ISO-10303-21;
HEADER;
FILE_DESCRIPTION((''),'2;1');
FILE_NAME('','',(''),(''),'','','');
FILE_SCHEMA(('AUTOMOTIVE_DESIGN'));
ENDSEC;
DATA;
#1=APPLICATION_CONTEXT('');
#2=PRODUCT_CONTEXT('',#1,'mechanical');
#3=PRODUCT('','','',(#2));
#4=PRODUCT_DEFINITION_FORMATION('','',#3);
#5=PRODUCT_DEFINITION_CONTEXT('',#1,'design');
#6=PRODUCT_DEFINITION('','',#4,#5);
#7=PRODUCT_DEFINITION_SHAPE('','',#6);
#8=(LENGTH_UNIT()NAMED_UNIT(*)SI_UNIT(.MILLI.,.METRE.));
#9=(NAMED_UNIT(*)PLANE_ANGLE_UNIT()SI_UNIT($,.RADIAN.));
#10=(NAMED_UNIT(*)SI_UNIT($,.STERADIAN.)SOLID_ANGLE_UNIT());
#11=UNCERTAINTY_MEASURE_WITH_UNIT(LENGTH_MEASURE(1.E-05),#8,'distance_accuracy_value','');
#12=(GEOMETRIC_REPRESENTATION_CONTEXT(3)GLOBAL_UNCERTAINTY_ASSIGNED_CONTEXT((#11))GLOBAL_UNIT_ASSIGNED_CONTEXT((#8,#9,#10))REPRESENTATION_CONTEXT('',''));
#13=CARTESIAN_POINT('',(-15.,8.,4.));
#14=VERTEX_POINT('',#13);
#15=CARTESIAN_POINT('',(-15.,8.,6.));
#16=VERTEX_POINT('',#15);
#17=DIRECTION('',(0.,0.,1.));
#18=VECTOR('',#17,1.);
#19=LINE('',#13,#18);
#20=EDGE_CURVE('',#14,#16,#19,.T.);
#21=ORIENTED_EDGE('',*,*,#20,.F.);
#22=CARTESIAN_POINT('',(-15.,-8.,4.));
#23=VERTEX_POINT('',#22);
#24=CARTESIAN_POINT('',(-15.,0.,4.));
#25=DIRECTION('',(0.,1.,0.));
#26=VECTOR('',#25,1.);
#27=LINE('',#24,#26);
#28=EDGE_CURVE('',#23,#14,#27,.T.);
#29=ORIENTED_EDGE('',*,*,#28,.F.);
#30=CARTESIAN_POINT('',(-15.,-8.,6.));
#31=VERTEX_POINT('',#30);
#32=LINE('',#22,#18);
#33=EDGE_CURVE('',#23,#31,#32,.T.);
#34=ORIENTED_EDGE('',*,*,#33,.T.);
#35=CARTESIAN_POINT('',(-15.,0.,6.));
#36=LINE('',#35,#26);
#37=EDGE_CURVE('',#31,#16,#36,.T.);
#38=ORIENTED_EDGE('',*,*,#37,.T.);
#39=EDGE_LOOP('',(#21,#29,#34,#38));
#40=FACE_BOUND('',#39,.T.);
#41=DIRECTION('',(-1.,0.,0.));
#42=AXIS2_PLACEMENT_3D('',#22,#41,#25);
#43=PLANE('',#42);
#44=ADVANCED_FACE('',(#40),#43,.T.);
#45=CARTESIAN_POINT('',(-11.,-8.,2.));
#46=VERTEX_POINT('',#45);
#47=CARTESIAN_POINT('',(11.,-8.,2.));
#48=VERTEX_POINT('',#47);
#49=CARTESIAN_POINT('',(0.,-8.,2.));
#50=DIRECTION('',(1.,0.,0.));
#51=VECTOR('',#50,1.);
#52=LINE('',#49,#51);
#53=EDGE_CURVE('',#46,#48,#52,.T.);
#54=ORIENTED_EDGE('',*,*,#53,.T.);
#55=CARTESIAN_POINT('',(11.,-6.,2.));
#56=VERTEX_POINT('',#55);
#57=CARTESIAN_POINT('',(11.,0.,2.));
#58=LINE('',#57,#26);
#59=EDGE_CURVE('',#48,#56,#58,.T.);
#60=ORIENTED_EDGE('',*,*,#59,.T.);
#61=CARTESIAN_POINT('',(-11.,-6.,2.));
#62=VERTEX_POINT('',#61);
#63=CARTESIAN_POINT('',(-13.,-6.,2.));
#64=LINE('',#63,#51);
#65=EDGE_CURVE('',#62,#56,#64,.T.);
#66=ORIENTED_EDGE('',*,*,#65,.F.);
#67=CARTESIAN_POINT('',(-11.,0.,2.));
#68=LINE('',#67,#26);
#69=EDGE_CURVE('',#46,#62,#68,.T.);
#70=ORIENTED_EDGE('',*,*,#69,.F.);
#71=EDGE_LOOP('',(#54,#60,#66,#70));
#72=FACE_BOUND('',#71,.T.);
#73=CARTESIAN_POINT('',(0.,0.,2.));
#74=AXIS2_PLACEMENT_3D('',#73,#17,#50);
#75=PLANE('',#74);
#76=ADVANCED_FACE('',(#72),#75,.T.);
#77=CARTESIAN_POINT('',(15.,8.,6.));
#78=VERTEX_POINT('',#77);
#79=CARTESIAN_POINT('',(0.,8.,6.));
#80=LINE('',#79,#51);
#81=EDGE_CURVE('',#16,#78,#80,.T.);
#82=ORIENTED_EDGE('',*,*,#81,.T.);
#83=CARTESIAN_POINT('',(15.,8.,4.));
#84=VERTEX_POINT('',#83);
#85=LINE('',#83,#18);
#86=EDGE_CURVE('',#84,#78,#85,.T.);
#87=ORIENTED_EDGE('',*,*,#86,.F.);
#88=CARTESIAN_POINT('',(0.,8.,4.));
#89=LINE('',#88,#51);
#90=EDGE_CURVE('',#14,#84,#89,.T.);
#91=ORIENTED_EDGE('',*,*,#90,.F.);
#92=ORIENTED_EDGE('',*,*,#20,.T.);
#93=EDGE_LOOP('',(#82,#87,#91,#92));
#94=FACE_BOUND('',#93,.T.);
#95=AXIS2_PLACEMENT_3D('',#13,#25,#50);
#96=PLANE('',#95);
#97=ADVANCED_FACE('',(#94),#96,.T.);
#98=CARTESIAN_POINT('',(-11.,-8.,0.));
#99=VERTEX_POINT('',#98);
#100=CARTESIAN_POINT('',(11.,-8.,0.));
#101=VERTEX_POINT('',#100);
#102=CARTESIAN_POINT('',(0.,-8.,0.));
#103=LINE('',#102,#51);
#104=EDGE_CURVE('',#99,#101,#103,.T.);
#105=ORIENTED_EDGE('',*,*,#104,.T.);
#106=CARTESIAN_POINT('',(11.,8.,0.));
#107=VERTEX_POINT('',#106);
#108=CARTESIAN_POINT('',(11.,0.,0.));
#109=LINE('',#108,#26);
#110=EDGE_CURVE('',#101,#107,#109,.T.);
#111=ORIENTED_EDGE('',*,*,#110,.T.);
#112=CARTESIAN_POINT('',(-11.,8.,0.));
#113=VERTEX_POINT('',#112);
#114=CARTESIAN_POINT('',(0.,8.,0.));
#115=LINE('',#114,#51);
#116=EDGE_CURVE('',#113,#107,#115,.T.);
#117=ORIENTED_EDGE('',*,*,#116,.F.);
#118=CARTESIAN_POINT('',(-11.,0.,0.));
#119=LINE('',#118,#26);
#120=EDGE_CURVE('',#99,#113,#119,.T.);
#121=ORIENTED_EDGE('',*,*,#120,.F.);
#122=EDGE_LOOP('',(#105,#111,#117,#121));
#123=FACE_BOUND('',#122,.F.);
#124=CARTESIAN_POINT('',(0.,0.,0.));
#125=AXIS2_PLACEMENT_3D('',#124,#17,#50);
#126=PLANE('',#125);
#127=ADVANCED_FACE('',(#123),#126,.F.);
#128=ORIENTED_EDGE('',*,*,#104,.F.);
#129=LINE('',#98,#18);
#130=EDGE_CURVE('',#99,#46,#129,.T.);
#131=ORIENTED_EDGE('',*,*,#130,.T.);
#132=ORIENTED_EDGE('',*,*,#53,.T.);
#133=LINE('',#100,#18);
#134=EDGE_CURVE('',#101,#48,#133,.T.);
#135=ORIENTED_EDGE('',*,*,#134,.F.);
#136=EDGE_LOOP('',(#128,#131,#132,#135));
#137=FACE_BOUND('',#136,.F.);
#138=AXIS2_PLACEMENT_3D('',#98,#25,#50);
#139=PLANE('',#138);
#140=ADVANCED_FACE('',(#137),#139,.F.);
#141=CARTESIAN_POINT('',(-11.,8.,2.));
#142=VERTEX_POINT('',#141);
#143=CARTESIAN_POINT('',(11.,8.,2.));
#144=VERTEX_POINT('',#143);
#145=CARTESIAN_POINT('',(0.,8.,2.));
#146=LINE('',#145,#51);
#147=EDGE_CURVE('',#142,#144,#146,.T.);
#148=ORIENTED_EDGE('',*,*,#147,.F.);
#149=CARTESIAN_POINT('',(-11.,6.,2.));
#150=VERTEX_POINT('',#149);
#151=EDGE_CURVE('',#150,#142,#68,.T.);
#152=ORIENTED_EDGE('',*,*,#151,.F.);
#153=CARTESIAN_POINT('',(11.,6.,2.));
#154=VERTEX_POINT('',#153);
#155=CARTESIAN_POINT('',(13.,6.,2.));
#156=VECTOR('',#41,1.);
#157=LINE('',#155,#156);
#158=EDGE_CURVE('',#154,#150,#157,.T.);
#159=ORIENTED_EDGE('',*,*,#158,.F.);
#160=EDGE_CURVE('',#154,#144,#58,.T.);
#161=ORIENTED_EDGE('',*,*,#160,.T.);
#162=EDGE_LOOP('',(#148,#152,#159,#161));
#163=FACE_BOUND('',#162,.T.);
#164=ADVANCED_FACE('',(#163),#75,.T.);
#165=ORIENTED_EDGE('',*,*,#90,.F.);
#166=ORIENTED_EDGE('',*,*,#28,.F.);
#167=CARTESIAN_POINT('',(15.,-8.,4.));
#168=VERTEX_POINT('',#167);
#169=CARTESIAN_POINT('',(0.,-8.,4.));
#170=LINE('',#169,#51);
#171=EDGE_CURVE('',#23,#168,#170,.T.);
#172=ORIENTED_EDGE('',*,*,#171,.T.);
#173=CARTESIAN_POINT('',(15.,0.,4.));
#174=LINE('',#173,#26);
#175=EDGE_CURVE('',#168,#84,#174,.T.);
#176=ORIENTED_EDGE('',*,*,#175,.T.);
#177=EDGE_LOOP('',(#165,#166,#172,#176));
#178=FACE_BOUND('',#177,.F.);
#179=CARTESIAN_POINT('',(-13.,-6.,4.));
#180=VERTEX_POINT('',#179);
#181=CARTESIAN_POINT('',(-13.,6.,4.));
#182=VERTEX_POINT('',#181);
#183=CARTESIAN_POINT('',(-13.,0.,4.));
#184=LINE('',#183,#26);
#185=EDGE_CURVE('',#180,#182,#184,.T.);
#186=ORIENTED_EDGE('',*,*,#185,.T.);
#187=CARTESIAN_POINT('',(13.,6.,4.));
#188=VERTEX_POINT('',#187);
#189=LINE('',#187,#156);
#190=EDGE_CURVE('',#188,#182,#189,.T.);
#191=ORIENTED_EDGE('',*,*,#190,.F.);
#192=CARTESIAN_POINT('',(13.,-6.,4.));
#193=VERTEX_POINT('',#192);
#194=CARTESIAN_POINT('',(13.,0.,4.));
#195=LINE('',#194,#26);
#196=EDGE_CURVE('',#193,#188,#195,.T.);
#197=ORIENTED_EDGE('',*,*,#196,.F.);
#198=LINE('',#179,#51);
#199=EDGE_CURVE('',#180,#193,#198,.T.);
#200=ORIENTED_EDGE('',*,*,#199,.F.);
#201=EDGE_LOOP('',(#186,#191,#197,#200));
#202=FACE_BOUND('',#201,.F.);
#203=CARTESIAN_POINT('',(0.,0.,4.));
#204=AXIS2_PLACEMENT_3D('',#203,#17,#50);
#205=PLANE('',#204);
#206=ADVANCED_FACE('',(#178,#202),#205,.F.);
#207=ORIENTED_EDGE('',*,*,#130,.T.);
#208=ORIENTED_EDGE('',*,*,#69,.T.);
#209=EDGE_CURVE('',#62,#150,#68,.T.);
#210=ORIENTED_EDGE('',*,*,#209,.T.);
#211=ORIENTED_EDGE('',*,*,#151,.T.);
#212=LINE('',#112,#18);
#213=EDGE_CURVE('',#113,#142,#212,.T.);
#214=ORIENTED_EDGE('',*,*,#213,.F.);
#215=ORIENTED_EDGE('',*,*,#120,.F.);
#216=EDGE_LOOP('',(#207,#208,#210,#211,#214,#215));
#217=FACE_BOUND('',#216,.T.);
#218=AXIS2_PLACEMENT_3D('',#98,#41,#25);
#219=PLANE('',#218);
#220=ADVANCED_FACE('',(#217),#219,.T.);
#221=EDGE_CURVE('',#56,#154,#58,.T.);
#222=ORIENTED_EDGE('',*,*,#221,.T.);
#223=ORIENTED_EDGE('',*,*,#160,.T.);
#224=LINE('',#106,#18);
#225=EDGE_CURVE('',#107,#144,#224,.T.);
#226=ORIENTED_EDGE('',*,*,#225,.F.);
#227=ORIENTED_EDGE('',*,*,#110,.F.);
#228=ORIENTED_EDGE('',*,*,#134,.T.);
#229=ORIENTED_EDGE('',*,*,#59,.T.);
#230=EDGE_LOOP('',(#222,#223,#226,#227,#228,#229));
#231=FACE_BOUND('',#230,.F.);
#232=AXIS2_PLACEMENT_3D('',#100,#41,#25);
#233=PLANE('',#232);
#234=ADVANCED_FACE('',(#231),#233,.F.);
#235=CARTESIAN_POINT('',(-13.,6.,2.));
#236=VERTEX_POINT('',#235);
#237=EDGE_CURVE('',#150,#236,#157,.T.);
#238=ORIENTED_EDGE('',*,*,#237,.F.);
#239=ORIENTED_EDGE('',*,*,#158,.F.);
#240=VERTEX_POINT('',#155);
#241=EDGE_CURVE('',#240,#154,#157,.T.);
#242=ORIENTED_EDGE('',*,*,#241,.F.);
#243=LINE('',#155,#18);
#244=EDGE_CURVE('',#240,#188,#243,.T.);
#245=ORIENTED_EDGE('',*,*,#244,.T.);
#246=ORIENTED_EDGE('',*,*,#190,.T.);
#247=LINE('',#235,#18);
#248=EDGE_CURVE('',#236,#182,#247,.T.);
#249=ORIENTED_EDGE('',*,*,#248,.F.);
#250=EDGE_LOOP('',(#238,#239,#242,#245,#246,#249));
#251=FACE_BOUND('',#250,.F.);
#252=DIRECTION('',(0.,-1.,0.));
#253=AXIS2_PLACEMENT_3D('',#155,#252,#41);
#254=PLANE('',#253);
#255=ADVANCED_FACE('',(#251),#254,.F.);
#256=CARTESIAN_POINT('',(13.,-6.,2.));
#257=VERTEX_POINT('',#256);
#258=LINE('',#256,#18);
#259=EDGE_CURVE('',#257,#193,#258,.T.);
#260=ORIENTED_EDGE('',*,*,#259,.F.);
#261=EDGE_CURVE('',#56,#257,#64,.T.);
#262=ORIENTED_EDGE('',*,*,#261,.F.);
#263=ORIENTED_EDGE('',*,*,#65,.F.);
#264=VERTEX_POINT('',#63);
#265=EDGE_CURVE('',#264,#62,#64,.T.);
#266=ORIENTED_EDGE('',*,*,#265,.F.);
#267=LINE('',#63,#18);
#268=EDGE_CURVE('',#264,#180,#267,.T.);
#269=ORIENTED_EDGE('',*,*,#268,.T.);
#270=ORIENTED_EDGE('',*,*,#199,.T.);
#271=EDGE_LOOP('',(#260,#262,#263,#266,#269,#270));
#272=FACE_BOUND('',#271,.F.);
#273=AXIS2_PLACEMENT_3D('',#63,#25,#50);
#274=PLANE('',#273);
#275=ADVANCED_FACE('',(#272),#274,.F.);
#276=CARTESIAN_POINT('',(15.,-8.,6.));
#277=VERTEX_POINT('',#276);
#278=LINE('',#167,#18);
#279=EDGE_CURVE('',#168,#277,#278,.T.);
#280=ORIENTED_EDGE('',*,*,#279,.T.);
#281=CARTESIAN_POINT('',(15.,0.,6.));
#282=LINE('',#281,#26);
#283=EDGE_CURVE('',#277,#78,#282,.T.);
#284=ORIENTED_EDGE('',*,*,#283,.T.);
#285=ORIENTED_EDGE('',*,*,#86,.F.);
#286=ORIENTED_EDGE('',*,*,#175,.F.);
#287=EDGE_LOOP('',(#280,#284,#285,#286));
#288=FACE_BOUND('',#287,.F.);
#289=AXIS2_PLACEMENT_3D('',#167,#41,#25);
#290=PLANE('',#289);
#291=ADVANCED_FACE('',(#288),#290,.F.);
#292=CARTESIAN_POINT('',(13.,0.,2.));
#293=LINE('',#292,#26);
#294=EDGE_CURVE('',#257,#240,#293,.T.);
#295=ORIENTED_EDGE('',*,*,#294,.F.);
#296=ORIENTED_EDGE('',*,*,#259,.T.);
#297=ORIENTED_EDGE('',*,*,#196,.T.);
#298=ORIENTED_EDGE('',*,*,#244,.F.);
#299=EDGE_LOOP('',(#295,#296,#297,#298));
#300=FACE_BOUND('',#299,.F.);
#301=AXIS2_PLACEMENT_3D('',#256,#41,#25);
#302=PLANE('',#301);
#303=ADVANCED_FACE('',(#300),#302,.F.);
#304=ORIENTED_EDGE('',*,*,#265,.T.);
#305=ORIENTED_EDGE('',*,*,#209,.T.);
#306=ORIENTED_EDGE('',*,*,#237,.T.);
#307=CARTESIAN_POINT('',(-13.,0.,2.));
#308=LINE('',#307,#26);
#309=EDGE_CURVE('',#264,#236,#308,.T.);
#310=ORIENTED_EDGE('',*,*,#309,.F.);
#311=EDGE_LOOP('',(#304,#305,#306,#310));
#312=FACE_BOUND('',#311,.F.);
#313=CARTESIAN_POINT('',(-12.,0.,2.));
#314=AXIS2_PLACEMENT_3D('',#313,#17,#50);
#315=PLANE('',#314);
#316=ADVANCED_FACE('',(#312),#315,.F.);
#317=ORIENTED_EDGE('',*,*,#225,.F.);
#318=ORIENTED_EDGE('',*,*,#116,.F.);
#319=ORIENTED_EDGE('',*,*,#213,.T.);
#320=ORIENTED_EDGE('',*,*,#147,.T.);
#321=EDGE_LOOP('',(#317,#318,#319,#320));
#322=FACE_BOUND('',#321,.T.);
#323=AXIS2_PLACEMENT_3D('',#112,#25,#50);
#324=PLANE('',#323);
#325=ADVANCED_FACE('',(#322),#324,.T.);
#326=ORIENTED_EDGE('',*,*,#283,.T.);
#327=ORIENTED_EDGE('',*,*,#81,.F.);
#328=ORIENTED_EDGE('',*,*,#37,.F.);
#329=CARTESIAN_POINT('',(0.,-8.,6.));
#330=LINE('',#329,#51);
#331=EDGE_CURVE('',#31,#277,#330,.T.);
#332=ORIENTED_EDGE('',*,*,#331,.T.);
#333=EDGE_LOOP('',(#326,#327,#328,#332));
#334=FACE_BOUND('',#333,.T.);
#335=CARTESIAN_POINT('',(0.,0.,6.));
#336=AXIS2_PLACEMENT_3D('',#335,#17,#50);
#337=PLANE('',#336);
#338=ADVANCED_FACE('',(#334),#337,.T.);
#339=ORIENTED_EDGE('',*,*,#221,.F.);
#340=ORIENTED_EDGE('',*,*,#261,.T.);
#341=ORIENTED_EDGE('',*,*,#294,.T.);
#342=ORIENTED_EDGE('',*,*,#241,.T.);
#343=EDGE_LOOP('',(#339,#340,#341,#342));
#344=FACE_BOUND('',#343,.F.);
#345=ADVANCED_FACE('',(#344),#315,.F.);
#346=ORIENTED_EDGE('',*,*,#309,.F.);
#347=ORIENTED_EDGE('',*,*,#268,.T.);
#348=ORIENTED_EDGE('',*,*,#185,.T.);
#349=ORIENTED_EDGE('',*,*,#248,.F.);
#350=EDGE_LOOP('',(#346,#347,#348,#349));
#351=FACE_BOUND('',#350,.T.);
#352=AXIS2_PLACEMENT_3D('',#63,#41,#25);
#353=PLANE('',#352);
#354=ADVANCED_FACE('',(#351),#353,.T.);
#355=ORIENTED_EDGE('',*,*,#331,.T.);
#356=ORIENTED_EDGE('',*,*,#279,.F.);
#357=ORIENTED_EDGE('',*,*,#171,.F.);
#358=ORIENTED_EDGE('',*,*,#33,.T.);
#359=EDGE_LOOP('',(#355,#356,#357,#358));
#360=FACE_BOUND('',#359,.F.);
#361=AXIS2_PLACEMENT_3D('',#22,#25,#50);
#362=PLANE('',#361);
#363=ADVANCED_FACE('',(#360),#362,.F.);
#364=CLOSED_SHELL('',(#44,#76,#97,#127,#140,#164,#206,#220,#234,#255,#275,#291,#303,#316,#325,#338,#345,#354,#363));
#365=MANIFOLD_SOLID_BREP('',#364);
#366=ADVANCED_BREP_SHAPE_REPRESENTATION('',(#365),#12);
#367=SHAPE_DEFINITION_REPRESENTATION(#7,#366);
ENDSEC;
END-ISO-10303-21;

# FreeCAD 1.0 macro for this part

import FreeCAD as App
import Part
import Sketcher

V = App.Vector


def add_polygon(sketch, points):
    """Adds a closed chain of lines whose ends are joined by coincident constraints."""
    first, n = sketch.GeometryCount, len(points)
    for a, b in zip(points, points[1:] + points[:1]):
        sketch.addGeometry(Part.LineSegment(App.Vector(*a, 0), App.Vector(*b, 0)), False)
    for i in range(n):
        sketch.addConstraint(Sketcher.Constraint("Coincident", first + i, 2, first + (i + 1) % n, 1))

doc = App.newDocument("Part")
body = doc.addObject("PartDesign::Body", "Body")

sketch1 = doc.addObject("Sketcher::SketchObject", "Sketch")
body.addObject(sketch1)
sketch1.AttachmentSupport = (doc.XY_Plane, [""])
sketch1.MapMode = "FlatFace"
add_polygon(sketch1, [(-11, 8), (-11, -8), (11, -8), (11, 8)])
sketch1.addConstraint([
    Sketcher.Constraint("Vertical", 0),
    Sketcher.Constraint("Horizontal", 1),
    Sketcher.Constraint("Vertical", 2),
    Sketcher.Constraint("Horizontal", 3),
    Sketcher.Constraint("Symmetric", 0, 2, 2, 2, -1, 1),
    Sketcher.Constraint("DistanceX", 1, 1, 1, 2, 22.0),
    Sketcher.Constraint("DistanceY", 0, 2, 0, 1, 16.0),
])
pad1 = doc.addObject("PartDesign::Pad", "Pad")
body.addObject(pad1)
pad1.Profile = sketch1
pad1.Length = 2

sketch2 = doc.addObject("Sketcher::SketchObject", "Sketch001")
body.addObject(sketch2)
sketch2.AttachmentSupport = (doc.XY_Plane, [""])
sketch2.MapMode = "FlatFace"
sketch2.AttachmentOffset = App.Placement(V(0, 0, 2), App.Rotation())
add_polygon(sketch2, [(-13, 6), (-13, -6), (13, -6), (13, 6)])
sketch2.addConstraint([
    Sketcher.Constraint("Vertical", 0),
    Sketcher.Constraint("Horizontal", 1),
    Sketcher.Constraint("Vertical", 2),
    Sketcher.Constraint("Horizontal", 3),
    Sketcher.Constraint("Symmetric", 0, 2, 2, 2, -1, 1),
    Sketcher.Constraint("DistanceX", 1, 1, 1, 2, 26.0),
    Sketcher.Constraint("DistanceY", 0, 2, 0, 1, 12.0),
])
pad2 = doc.addObject("PartDesign::Pad", "Pad001")
body.addObject(pad2)
pad2.Profile = sketch2
pad2.Length = 2

sketch3 = doc.addObject("Sketcher::SketchObject", "Sketch002")
body.addObject(sketch3)
sketch3.AttachmentSupport = (doc.XY_Plane, [""])
sketch3.MapMode = "FlatFace"
sketch3.AttachmentOffset = App.Placement(V(0, 0, 4), App.Rotation())
add_polygon(sketch3, [(-15, 8), (-15, -8), (15, -8), (15, 8)])
sketch3.addConstraint([
    Sketcher.Constraint("Vertical", 0),
    Sketcher.Constraint("Horizontal", 1),
    Sketcher.Constraint("Vertical", 2),
    Sketcher.Constraint("Horizontal", 3),
    Sketcher.Constraint("Symmetric", 0, 2, 2, 2, -1, 1),
    Sketcher.Constraint("DistanceX", 1, 1, 1, 2, 30.0),
    Sketcher.Constraint("DistanceY", 0, 2, 0, 1, 16.0),
])
pad3 = doc.addObject("PartDesign::Pad", "Pad002")
body.addObject(pad3)
pad3.Profile = sketch3
pad3.Length = 2

doc.recompute()
